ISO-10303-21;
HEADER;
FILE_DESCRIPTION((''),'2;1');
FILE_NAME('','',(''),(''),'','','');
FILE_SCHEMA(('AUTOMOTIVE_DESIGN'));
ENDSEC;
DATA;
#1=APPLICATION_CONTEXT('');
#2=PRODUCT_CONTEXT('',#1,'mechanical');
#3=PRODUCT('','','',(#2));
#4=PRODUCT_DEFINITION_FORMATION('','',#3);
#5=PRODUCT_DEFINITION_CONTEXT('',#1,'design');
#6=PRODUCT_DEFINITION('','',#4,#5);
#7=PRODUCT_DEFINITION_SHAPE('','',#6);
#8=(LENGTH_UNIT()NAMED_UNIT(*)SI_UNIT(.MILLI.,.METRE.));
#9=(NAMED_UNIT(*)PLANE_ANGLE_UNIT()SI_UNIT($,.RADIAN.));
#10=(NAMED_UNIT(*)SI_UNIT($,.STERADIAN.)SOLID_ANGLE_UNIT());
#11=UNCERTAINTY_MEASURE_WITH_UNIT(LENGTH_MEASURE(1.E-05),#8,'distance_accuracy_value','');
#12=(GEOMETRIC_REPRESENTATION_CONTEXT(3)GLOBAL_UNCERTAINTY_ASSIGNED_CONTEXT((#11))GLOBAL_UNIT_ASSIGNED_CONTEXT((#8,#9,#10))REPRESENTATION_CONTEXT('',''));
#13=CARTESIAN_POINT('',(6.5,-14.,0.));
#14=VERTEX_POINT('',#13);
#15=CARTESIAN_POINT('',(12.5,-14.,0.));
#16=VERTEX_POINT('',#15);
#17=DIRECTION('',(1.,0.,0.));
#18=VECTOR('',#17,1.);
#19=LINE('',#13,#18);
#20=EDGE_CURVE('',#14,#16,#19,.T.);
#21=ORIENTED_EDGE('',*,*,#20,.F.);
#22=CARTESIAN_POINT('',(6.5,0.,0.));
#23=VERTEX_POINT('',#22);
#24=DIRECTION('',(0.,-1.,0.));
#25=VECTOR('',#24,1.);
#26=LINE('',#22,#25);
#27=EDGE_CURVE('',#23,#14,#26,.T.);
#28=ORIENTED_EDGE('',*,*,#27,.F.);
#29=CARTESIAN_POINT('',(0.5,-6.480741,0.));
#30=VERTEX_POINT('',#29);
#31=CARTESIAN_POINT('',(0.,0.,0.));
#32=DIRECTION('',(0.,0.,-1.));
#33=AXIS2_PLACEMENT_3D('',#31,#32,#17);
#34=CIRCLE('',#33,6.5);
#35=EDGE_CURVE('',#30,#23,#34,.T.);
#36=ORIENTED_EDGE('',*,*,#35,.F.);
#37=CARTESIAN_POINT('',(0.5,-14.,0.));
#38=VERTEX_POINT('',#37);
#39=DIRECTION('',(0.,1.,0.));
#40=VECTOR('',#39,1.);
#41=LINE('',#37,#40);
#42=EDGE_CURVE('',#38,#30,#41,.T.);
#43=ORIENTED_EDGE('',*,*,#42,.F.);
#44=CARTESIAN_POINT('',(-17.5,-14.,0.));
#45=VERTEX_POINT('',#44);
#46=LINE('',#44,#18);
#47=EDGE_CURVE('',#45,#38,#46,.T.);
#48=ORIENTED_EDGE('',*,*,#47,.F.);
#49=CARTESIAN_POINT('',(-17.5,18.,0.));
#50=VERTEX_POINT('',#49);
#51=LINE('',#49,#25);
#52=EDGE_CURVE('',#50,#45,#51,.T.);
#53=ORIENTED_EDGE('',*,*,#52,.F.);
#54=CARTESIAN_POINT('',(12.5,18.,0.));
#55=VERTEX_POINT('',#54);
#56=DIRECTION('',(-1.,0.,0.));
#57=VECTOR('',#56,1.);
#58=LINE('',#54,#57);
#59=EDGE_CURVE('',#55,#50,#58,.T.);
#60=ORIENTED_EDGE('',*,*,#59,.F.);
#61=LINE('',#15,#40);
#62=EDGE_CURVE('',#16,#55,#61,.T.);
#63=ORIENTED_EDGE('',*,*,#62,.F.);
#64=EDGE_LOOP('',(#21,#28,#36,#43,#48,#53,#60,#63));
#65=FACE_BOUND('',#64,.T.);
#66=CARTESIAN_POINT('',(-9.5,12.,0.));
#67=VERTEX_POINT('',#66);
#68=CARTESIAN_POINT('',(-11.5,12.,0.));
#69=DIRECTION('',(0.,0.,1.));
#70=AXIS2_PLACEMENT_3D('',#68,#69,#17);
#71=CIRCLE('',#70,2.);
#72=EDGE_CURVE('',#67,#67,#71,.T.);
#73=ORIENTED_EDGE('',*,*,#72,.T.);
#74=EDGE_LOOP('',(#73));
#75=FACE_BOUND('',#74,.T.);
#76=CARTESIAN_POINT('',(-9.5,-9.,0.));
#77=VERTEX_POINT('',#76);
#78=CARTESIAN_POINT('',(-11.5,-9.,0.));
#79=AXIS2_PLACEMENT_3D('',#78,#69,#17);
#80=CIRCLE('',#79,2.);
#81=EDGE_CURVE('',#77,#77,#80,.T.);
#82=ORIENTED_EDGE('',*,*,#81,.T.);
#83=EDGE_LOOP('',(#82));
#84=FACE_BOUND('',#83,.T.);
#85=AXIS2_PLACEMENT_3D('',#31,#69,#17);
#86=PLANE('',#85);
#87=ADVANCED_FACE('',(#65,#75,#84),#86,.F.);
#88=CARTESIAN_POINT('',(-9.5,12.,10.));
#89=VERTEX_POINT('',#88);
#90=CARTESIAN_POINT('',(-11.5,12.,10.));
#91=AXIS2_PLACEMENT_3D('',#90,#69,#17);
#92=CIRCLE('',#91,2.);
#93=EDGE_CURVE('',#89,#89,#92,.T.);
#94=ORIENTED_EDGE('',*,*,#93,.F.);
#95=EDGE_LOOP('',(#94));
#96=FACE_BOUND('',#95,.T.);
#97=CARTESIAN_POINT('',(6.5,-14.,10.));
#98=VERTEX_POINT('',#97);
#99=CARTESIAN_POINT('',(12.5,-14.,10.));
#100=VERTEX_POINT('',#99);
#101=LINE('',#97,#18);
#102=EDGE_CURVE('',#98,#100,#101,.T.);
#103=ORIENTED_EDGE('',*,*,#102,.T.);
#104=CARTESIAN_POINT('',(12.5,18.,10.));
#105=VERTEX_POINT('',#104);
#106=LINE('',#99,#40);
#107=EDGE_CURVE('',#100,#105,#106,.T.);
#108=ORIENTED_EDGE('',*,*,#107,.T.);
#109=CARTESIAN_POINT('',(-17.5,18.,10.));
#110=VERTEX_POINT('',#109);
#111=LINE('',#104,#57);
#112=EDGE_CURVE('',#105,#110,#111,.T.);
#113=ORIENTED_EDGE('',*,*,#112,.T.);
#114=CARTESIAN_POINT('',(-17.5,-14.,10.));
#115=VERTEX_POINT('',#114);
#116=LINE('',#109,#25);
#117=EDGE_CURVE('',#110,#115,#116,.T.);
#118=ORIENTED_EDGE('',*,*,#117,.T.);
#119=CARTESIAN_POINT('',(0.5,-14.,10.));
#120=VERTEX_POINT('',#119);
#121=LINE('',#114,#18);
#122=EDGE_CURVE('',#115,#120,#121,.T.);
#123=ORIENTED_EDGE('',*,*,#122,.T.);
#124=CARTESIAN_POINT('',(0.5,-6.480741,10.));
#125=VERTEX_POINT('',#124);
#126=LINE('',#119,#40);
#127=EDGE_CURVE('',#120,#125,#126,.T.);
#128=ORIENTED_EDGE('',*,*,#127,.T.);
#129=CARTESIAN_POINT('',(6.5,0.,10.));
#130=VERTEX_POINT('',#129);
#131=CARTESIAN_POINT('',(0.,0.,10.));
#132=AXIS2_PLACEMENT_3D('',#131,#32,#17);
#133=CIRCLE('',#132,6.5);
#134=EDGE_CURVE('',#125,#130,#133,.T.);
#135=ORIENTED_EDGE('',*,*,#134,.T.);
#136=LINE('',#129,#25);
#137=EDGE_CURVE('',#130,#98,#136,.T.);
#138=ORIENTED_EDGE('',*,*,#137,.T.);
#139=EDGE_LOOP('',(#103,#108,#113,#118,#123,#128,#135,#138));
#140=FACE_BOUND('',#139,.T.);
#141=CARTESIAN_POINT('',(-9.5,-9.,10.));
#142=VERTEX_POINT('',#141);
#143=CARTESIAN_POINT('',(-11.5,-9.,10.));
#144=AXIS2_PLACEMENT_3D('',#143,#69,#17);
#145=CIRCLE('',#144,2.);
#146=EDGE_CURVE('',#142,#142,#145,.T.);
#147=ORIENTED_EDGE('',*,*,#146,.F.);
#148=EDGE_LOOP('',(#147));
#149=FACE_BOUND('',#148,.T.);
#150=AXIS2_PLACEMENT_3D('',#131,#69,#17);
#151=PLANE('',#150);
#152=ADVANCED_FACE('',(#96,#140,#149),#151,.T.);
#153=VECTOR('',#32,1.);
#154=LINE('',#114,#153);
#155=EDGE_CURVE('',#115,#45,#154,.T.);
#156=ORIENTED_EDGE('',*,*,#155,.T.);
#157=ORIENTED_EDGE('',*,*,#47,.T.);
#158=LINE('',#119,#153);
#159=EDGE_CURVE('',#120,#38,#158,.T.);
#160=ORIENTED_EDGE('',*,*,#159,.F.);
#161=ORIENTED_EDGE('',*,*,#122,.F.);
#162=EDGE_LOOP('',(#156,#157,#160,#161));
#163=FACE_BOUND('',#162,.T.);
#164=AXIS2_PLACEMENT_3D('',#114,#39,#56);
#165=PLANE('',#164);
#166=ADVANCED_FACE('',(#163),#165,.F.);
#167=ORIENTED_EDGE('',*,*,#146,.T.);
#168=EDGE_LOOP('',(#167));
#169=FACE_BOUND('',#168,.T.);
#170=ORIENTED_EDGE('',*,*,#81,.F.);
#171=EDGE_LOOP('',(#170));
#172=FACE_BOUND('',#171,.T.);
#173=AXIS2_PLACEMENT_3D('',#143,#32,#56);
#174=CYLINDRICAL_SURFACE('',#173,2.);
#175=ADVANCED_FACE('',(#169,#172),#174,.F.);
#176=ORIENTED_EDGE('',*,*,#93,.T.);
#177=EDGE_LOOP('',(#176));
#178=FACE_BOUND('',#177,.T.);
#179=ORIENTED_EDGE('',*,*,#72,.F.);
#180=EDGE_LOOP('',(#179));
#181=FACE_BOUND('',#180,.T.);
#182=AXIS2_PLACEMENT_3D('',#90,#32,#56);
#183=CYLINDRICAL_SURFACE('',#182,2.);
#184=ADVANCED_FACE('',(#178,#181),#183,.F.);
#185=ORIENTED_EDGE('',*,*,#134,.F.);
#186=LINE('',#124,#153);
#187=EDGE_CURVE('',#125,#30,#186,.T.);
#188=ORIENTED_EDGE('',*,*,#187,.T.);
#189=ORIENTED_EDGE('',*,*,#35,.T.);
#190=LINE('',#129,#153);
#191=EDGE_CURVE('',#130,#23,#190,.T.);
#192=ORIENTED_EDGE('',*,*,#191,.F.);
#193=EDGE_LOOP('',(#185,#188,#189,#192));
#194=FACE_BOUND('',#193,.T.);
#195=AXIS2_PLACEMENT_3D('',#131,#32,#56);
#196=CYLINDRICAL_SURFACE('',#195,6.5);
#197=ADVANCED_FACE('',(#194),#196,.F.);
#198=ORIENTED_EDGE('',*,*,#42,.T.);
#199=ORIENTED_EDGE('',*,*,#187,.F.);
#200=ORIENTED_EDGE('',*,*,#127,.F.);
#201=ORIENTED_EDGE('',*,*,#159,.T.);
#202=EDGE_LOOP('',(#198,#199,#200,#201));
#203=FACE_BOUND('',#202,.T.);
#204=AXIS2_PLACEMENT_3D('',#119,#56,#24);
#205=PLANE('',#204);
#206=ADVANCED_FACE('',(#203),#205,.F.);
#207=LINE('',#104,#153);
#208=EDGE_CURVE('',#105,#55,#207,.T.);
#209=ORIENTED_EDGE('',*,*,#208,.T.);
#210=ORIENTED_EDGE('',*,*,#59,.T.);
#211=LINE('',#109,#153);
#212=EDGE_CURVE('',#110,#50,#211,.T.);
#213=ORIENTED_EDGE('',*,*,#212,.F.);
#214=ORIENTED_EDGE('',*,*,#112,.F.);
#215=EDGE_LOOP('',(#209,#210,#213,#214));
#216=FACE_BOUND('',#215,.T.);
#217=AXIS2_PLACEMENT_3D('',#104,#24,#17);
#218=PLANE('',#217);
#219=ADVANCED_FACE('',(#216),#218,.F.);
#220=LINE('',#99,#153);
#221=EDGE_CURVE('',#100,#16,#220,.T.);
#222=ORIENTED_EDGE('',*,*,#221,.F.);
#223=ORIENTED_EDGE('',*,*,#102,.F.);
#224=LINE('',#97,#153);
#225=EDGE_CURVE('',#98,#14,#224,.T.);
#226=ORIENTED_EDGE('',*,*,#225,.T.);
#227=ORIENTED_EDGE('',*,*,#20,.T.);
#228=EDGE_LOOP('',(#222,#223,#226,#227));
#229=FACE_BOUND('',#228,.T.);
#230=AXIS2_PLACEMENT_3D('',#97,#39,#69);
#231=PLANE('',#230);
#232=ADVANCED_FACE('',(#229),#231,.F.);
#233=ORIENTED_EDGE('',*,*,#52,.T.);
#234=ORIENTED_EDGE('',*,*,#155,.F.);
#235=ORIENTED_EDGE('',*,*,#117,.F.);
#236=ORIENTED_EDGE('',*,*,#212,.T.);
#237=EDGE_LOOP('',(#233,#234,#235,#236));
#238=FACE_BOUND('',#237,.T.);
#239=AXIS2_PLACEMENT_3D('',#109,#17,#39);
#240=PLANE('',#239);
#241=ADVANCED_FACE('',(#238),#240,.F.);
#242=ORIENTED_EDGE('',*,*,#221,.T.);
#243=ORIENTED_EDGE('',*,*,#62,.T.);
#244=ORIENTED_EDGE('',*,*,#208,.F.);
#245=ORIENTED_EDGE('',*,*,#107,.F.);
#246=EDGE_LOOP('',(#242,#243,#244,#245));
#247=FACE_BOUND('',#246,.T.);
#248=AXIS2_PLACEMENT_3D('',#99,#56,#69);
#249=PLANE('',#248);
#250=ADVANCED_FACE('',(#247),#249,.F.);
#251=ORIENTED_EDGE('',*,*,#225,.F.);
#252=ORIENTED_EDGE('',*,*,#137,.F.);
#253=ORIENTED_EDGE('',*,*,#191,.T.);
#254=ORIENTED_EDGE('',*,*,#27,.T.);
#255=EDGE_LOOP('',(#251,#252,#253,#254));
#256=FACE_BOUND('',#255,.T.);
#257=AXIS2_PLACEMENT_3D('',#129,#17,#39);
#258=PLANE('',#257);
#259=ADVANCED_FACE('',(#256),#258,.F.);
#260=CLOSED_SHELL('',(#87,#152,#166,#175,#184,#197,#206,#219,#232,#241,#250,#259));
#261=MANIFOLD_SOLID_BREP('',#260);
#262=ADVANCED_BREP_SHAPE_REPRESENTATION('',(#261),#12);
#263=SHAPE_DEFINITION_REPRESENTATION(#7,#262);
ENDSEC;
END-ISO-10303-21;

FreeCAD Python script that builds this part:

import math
import FreeCAD as App
import Part
import Sketcher
Q = App.Units.Quantity

doc = App.newDocument("Part")
body = doc.addObject("PartDesign::Body", "Body")

# Sketch on XY plane
sketch1 = doc.addObject("Sketcher::SketchObject", "Sketch")
body.addObject(sketch1)
sketch1.AttachmentSupport = (doc.XY_Plane, [""])
sketch1.MapMode = "FlatFace"
sketch1.addGeometry(Part.LineSegment(App.Vector(6.5, 0, 0), App.Vector(6.5, -14, 0)), False)
sketch1.addGeometry(Part.LineSegment(App.Vector(6.5, -14, 0), App.Vector(12.5, -14, 0)), False)
sketch1.addGeometry(Part.LineSegment(App.Vector(12.5, -14, 0), App.Vector(12.5, 18, 0)), False)
sketch1.addGeometry(Part.LineSegment(App.Vector(12.5, 18, 0), App.Vector(-17.5, 18, 0)), False)
sketch1.addGeometry(Part.LineSegment(App.Vector(-17.5, 18, 0), App.Vector(-17.5, -14, 0)), False)
sketch1.addGeometry(Part.LineSegment(App.Vector(-17.5, -14, 0), App.Vector(0.5, -14, 0)), False)
sketch1.addGeometry(Part.LineSegment(App.Vector(0.5, -14, 0), App.Vector(0.5, -6.5, 0)), False)
sketch1.addGeometry(Part.ArcOfCircle(Part.Circle(App.Vector(0, 0, 0), App.Vector(0, 0, 1), 6.5), math.radians(0), math.radians(274)), False)
sketch1.addGeometry(Part.Circle(App.Vector(-11.5, -9, 0), App.Vector(0, 0, 1), 2), False)
sketch1.addGeometry(Part.Circle(App.Vector(-11.5, 12, 0), App.Vector(0, 0, 1), 2), False)
sketch1.addConstraint(Sketcher.Constraint("Coincident", 0, 2, 1, 1))
sketch1.addConstraint(Sketcher.Constraint("Coincident", 1, 2, 2, 1))
sketch1.addConstraint(Sketcher.Constraint("Coincident", 2, 2, 3, 1))
sketch1.addConstraint(Sketcher.Constraint("Coincident", 3, 2, 4, 1))
sketch1.addConstraint(Sketcher.Constraint("Coincident", 4, 2, 5, 1))
sketch1.addConstraint(Sketcher.Constraint("Coincident", 5, 2, 6, 1))
sketch1.addConstraint(Sketcher.Constraint("Coincident", 6, 2, 7, 2))
sketch1.addConstraint(Sketcher.Constraint("Tangent", 7, 1, 0, 1))
sketch1.addConstraint(Sketcher.Constraint("Vertical", 0))
sketch1.addConstraint(Sketcher.Constraint("Horizontal", 1))
sketch1.addConstraint(Sketcher.Constraint("Vertical", 2))
sketch1.addConstraint(Sketcher.Constraint("Horizontal", 3))
sketch1.addConstraint(Sketcher.Constraint("Vertical", 4))
sketch1.addConstraint(Sketcher.Constraint("Horizontal", 5))
sketch1.addConstraint(Sketcher.Constraint("Vertical", 6))
sketch1.addConstraint(Sketcher.Constraint("Coincident", 7, 3, -1, 1))
sketch1.addConstraint(Sketcher.Constraint("Equal", 8, 9))
sketch1.addConstraint(Sketcher.Constraint("Horizontal", 1, 2, 4, 2))
sketch1.addConstraint(Sketcher.Constraint("Vertical", 8, 3, 9, 3))
sketch1.addConstraint(Sketcher.Constraint("Diameter", 8, Q("4 mm")))
sketch1.addConstraint(Sketcher.Constraint("Radius", 7, Q("6.5 mm")))
sketch1.addConstraint(Sketcher.Constraint("DistanceX", 1, 1, 1, 2, Q("6 mm")))
sketch1.addConstraint(Sketcher.Constraint("DistanceX", 3, 2, 3, 1, Q("30 mm")))
sketch1.addConstraint(Sketcher.Constraint("DistanceX", 5, 1, 5, 2, Q("18 mm")))
sketch1.addConstraint(Sketcher.Constraint("DistanceY", 0, 2, 0, 1, Q("14 mm")))
sketch1.addConstraint(Sketcher.Constraint("DistanceY", 2, 1, 2, 2, Q("32 mm")))
sketch1.addConstraint(Sketcher.Constraint("DistanceY", 8, 3, -1, 1, Q("9 mm")))
sketch1.addConstraint(Sketcher.Constraint("DistanceY", -1, 1, 9, 3, Q("12 mm")))
sketch1.addConstraint(Sketcher.Constraint("DistanceX", 8, 3, 0, 2, Q("18 mm")))
pad1 = doc.addObject("PartDesign::Pad", "Pad")
body.addObject(pad1)
pad1.Profile = sketch1
pad1.Length = 10

doc.recompute()
